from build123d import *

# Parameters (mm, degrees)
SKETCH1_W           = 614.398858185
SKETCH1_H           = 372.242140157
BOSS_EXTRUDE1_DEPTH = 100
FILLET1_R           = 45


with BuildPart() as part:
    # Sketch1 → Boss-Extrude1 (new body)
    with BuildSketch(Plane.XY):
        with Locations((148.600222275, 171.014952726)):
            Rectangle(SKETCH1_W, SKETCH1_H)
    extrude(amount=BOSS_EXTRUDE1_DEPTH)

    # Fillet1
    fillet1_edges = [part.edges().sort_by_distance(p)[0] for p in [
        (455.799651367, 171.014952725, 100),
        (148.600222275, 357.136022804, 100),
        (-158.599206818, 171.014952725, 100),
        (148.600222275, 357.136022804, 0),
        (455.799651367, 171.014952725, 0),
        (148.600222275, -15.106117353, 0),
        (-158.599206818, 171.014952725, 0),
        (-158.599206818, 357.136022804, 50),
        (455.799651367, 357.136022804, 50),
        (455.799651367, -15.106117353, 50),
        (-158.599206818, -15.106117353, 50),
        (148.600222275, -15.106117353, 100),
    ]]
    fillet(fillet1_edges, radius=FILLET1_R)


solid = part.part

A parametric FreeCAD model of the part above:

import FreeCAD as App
import Part
import Sketcher
from FreeCAD import Vector


def add_polygon(sketch, points):
    """Adds a closed chain of lines whose ends are joined by coincident constraints."""
    first, n = sketch.GeometryCount, len(points)
    for a, b in zip(points, points[1:] + points[:1]):
        sketch.addGeometry(Part.LineSegment(App.Vector(*a, 0), App.Vector(*b, 0)), False)
    for i in range(n):
        sketch.addConstraint(Sketcher.Constraint("Coincident", first + i, 2, first + (i + 1) % n, 1))

doc = App.newDocument("Part")
body = doc.addObject("PartDesign::Body", "Body")

# Sketch on XY plane
sketch1 = body.newObject("Sketcher::SketchObject", "Sketch")
sketch1.AttachmentSupport = (doc.getObject("XY_Plane"), [""])
sketch1.MapMode = "FlatFace"
add_polygon(sketch1, [(-159, 357), (-159, -15), (456, -15), (456, 357)])  # lines 0-3
sketch1.addConstraint(Sketcher.Constraint("Vertical", 0))
sketch1.addConstraint(Sketcher.Constraint("Horizontal", 1))
sketch1.addConstraint(Sketcher.Constraint("Vertical", 2))
sketch1.addConstraint(Sketcher.Constraint("Horizontal", 3))
sketch1.addConstraint(Sketcher.Constraint("DistanceX", 1, 1, 1, 2, 614.398858))
sketch1.addConstraint(Sketcher.Constraint("DistanceY", 0, 2, 0, 1, 372.24214))
sketch1.addConstraint(Sketcher.Constraint("DistanceX", -1, 1, 1, 2, 455.799651))
sketch1.addConstraint(Sketcher.Constraint("DistanceY", 0, 2, -1, 1, 15.106117))
pad1 = body.newObject("PartDesign::Pad", "Pad")
pad1.Profile = sketch1
pad1.Length = 100
doc.recompute()

fillet = body.newObject("PartDesign::Fillet", "Fillet")
fillet.Base = (pad1, ["Edge1"])
fillet.UseAllEdges = True
fillet.Radius = 45

doc.recompute()
